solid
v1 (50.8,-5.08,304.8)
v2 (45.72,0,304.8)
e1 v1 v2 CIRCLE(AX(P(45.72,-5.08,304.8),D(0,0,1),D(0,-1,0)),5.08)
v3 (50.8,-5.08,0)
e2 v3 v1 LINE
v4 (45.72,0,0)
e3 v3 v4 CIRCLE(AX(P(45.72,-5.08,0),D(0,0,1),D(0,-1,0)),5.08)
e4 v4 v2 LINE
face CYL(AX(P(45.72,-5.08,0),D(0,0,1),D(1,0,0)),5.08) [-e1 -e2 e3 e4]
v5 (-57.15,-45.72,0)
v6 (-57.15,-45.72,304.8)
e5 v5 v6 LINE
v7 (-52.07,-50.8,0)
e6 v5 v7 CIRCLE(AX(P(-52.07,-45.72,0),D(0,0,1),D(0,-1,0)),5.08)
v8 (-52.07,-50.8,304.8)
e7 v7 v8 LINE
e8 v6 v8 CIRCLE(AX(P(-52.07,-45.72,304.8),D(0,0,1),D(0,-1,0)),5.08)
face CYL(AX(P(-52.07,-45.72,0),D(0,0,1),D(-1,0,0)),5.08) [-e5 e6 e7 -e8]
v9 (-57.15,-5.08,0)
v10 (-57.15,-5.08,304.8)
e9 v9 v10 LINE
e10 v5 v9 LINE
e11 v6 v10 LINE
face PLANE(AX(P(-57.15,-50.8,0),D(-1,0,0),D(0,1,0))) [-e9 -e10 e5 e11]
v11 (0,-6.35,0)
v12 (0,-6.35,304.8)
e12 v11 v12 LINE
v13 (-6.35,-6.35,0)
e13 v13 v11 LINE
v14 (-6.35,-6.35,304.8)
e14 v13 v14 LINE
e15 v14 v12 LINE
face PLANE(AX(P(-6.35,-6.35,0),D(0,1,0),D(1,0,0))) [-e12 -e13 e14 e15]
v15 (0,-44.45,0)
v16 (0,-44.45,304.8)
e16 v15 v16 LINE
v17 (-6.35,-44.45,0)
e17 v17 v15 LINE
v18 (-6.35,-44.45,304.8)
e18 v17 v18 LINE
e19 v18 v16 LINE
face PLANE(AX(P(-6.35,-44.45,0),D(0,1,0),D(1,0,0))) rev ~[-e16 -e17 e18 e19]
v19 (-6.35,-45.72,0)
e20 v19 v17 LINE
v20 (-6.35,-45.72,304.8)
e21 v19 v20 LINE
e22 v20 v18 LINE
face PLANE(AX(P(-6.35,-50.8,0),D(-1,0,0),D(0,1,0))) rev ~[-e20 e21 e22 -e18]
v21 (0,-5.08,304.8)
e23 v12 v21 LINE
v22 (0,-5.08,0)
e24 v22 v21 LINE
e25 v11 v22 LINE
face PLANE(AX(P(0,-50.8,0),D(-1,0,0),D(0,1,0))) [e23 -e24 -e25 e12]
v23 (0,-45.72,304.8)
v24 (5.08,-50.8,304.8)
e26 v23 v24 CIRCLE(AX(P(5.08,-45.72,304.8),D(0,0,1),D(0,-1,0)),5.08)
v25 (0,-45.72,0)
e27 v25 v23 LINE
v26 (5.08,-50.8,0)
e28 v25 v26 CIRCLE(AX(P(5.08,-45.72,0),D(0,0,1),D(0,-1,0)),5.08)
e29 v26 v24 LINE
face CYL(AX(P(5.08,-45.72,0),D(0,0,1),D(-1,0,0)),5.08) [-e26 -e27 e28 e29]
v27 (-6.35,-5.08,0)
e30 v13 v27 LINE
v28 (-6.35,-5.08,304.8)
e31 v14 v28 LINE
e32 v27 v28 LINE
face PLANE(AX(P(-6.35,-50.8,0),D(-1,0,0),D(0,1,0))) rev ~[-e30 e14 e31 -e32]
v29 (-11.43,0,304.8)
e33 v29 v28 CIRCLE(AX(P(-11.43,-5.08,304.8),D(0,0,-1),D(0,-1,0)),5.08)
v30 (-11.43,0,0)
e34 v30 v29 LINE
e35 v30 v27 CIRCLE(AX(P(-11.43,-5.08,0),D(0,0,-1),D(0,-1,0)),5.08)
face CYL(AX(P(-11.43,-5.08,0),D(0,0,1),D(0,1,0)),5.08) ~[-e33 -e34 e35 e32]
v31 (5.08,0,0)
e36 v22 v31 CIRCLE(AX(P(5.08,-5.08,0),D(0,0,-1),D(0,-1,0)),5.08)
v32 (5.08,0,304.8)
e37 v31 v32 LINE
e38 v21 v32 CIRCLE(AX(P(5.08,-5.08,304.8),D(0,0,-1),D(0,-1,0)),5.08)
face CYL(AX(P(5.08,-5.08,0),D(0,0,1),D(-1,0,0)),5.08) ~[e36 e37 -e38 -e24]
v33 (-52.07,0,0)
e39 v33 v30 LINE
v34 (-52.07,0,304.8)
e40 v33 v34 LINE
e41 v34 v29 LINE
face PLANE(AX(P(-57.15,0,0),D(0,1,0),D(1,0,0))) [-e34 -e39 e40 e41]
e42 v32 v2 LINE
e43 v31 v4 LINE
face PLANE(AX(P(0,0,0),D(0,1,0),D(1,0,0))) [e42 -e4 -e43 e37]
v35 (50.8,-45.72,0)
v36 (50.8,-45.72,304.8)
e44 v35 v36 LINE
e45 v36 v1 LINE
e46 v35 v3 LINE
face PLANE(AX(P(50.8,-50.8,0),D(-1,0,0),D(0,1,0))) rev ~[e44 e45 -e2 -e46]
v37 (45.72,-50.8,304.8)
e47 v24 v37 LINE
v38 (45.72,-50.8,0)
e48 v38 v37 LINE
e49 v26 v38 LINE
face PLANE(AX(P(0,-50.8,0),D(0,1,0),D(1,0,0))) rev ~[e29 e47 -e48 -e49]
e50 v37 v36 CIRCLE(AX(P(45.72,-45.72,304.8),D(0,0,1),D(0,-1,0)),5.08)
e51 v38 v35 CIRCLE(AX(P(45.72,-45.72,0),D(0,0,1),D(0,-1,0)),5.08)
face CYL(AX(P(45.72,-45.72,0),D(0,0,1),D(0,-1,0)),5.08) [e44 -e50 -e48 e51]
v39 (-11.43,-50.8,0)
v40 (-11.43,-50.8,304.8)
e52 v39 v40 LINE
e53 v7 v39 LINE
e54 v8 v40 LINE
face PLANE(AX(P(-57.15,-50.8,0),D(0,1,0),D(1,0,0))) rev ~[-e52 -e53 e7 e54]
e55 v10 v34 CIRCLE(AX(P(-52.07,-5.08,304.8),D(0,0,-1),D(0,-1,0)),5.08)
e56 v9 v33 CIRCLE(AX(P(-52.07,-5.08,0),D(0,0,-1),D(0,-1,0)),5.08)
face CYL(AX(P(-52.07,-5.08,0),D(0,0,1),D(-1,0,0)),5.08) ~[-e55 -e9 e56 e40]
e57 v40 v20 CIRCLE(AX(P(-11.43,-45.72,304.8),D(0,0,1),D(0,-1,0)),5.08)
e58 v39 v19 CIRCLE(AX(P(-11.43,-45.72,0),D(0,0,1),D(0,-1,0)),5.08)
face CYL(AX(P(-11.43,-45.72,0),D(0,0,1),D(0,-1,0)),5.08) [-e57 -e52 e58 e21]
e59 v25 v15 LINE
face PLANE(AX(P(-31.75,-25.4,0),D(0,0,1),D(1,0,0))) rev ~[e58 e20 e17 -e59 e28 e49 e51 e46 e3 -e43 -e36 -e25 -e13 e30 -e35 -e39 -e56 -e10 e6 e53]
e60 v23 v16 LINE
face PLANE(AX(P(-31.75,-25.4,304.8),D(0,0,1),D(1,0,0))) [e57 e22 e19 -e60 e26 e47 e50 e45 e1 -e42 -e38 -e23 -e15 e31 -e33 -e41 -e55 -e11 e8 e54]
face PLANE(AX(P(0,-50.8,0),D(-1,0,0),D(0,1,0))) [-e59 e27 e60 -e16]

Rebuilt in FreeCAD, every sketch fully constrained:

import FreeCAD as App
import Part
import Sketcher

V = App.Vector
Q = App.Units.Quantity


def edges_at(feature, points):
    """Names of the edges that pass closest to the given points."""
    edges = feature.Shape.Edges
    near = lambda p: min(range(len(edges)), key=lambda i: edges[i].distToShape(Part.Vertex(*p))[0])
    return sorted({f"Edge{near(p) + 1}" for p in points})

doc = App.newDocument("Part")
body = doc.addObject("PartDesign::Body", "Body")

# Sketch on XY plane
sketch1 = body.newObject("Sketcher::SketchObject", "Sketch")
sketch1.AttachmentSupport = (doc.getObject("XY_Plane"), [""])
sketch1.MapMode = "FlatFace"
sketch1.addGeometry(Part.LineSegment(V(0, 0, 0), V(0, -51, 0)), False)
sketch1.addGeometry(Part.LineSegment(V(0, -51, 0), V(51, -51, 0)), False)
sketch1.addGeometry(Part.LineSegment(V(51, -51, 0), V(51, 0, 0)), False)
sketch1.addGeometry(Part.LineSegment(V(51, 0, 0), V(0, 0, 0)), False)
sketch1.addConstraint(Sketcher.Constraint("Coincident", 0, 2, 1, 1))
sketch1.addConstraint(Sketcher.Constraint("Coincident", 1, 2, 2, 1))
sketch1.addConstraint(Sketcher.Constraint("Coincident", 2, 2, 3, 1))
sketch1.addConstraint(Sketcher.Constraint("Coincident", 3, 2, 0, 1))
sketch1.addConstraint(Sketcher.Constraint("Vertical", 0))
sketch1.addConstraint(Sketcher.Constraint("Horizontal", 1))
sketch1.addConstraint(Sketcher.Constraint("Vertical", 2))
sketch1.addConstraint(Sketcher.Constraint("Horizontal", 3))
sketch1.addConstraint(Sketcher.Constraint("Coincident", 3, 2, -1, 1))
sketch1.addConstraint(Sketcher.Constraint("Equal", 3, 0))
sketch1.addConstraint(Sketcher.Constraint("DistanceX", 1, 1, 1, 2, Q("2 in")))
pad1 = body.newObject("PartDesign::Pad", "Pad")
pad1.Profile = sketch1
pad1.Length = Q("12 in")
doc.recompute()

fillet = body.newObject("PartDesign::Fillet", "Fillet")
fillet.Base = (pad1, edges_at(pad1, [
    (0, -50.8, 152.4),
    (50.8, -50.8, 152.4),
    (50.8, 0, 152.4),
    (0, 0, 152.4),
]))
fillet.Radius = Q("0.2 in")

# Sketch on XY plane
sketch2 = body.newObject("Sketcher::SketchObject", "Sketch001")
sketch2.AttachmentSupport = (doc.getObject("XY_Plane"), [""])
sketch2.MapMode = "FlatFace"
sketch2.addGeometry(Part.LineSegment(V(-6, -6, 0), V(-6, -44, 0)), False)
sketch2.addGeometry(Part.LineSegment(V(-6, -44, 0), V(0, -44, 0)), False)
sketch2.addGeometry(Part.LineSegment(V(0, -44, 0), V(0, -6, 0)), False)
sketch2.addGeometry(Part.LineSegment(V(0, -6, 0), V(-6, -6, 0)), False)
sketch2.addConstraint(Sketcher.Constraint("Coincident", 0, 2, 1, 1))
sketch2.addConstraint(Sketcher.Constraint("Coincident", 1, 2, 2, 1))
sketch2.addConstraint(Sketcher.Constraint("Coincident", 2, 2, 3, 1))
sketch2.addConstraint(Sketcher.Constraint("Coincident", 3, 2, 0, 1))
sketch2.addConstraint(Sketcher.Constraint("Vertical", 0))
sketch2.addConstraint(Sketcher.Constraint("Horizontal", 1))
sketch2.addConstraint(Sketcher.Constraint("Vertical", 2))
sketch2.addConstraint(Sketcher.Constraint("Horizontal", 3))
sketch2.addConstraint(Sketcher.Constraint("PointOnObject", 1, 2, -2))
sketch2.addConstraint(Sketcher.Constraint("DistanceY", 0, 2, 0, 1, Q("1.5 in")))
sketch2.addConstraint(Sketcher.Constraint("DistanceX", 1, 1, 1, 2, Q("0.25 in")))
sketch2.addConstraint(Sketcher.Constraint("DistanceY", 0, 2, -1, 1, Q("1.75 in")))
pad2 = body.newObject("PartDesign::Pad", "Pad001")
pad2.Profile = sketch2
pad2.Length = Q("12 in")

# Sketch on XY plane
sketch3 = body.newObject("Sketcher::SketchObject", "Sketch002")
sketch3.AttachmentSupport = (doc.getObject("XY_Plane"), [""])
sketch3.MapMode = "FlatFace"
sketch3.addGeometry(Part.LineSegment(V(-57, 0, 0), V(-57, -51, 0)), False)
sketch3.addGeometry(Part.LineSegment(V(-57, -51, 0), V(-6, -51, 0)), False)
sketch3.addGeometry(Part.LineSegment(V(-6, -51, 0), V(-6, 0, 0)), False)
sketch3.addGeometry(Part.LineSegment(V(-6, 0, 0), V(-57, 0, 0)), False)
sketch3.addConstraint(Sketcher.Constraint("Coincident", 0, 2, 1, 1))
sketch3.addConstraint(Sketcher.Constraint("Coincident", 1, 2, 2, 1))
sketch3.addConstraint(Sketcher.Constraint("Coincident", 2, 2, 3, 1))
sketch3.addConstraint(Sketcher.Constraint("Coincident", 3, 2, 0, 1))
sketch3.addConstraint(Sketcher.Constraint("Vertical", 0))
sketch3.addConstraint(Sketcher.Constraint("Horizontal", 1))
sketch3.addConstraint(Sketcher.Constraint("Vertical", 2))
sketch3.addConstraint(Sketcher.Constraint("Horizontal", 3))
sketch3.addConstraint(Sketcher.Constraint("PointOnObject", 2, 2, -1))
sketch3.addConstraint(Sketcher.Constraint("Equal", 3, 0))
sketch3.addConstraint(Sketcher.Constraint("DistanceX", 1, 1, 1, 2, Q("2 in")))
sketch3.addConstraint(Sketcher.Constraint("DistanceX", 0, 2, -1, 1, Q("2.25 in")))
pad3 = body.newObject("PartDesign::Pad", "Pad002")
pad3.Profile = sketch3
pad3.Length = Q("12 in")
doc.recompute()

fillet2 = body.newObject("PartDesign::Fillet", "Fillet001")
fillet2.Base = (pad3, edges_at(pad3, [
    (-57.15, -50.8, 152.4),
    (-6.35, -50.8, 152.4),
    (-57.15, 0, 152.4),
    (-6.35, 0, 152.4),
]))
fillet2.Radius = Q("0.2 in")

doc.recompute()
